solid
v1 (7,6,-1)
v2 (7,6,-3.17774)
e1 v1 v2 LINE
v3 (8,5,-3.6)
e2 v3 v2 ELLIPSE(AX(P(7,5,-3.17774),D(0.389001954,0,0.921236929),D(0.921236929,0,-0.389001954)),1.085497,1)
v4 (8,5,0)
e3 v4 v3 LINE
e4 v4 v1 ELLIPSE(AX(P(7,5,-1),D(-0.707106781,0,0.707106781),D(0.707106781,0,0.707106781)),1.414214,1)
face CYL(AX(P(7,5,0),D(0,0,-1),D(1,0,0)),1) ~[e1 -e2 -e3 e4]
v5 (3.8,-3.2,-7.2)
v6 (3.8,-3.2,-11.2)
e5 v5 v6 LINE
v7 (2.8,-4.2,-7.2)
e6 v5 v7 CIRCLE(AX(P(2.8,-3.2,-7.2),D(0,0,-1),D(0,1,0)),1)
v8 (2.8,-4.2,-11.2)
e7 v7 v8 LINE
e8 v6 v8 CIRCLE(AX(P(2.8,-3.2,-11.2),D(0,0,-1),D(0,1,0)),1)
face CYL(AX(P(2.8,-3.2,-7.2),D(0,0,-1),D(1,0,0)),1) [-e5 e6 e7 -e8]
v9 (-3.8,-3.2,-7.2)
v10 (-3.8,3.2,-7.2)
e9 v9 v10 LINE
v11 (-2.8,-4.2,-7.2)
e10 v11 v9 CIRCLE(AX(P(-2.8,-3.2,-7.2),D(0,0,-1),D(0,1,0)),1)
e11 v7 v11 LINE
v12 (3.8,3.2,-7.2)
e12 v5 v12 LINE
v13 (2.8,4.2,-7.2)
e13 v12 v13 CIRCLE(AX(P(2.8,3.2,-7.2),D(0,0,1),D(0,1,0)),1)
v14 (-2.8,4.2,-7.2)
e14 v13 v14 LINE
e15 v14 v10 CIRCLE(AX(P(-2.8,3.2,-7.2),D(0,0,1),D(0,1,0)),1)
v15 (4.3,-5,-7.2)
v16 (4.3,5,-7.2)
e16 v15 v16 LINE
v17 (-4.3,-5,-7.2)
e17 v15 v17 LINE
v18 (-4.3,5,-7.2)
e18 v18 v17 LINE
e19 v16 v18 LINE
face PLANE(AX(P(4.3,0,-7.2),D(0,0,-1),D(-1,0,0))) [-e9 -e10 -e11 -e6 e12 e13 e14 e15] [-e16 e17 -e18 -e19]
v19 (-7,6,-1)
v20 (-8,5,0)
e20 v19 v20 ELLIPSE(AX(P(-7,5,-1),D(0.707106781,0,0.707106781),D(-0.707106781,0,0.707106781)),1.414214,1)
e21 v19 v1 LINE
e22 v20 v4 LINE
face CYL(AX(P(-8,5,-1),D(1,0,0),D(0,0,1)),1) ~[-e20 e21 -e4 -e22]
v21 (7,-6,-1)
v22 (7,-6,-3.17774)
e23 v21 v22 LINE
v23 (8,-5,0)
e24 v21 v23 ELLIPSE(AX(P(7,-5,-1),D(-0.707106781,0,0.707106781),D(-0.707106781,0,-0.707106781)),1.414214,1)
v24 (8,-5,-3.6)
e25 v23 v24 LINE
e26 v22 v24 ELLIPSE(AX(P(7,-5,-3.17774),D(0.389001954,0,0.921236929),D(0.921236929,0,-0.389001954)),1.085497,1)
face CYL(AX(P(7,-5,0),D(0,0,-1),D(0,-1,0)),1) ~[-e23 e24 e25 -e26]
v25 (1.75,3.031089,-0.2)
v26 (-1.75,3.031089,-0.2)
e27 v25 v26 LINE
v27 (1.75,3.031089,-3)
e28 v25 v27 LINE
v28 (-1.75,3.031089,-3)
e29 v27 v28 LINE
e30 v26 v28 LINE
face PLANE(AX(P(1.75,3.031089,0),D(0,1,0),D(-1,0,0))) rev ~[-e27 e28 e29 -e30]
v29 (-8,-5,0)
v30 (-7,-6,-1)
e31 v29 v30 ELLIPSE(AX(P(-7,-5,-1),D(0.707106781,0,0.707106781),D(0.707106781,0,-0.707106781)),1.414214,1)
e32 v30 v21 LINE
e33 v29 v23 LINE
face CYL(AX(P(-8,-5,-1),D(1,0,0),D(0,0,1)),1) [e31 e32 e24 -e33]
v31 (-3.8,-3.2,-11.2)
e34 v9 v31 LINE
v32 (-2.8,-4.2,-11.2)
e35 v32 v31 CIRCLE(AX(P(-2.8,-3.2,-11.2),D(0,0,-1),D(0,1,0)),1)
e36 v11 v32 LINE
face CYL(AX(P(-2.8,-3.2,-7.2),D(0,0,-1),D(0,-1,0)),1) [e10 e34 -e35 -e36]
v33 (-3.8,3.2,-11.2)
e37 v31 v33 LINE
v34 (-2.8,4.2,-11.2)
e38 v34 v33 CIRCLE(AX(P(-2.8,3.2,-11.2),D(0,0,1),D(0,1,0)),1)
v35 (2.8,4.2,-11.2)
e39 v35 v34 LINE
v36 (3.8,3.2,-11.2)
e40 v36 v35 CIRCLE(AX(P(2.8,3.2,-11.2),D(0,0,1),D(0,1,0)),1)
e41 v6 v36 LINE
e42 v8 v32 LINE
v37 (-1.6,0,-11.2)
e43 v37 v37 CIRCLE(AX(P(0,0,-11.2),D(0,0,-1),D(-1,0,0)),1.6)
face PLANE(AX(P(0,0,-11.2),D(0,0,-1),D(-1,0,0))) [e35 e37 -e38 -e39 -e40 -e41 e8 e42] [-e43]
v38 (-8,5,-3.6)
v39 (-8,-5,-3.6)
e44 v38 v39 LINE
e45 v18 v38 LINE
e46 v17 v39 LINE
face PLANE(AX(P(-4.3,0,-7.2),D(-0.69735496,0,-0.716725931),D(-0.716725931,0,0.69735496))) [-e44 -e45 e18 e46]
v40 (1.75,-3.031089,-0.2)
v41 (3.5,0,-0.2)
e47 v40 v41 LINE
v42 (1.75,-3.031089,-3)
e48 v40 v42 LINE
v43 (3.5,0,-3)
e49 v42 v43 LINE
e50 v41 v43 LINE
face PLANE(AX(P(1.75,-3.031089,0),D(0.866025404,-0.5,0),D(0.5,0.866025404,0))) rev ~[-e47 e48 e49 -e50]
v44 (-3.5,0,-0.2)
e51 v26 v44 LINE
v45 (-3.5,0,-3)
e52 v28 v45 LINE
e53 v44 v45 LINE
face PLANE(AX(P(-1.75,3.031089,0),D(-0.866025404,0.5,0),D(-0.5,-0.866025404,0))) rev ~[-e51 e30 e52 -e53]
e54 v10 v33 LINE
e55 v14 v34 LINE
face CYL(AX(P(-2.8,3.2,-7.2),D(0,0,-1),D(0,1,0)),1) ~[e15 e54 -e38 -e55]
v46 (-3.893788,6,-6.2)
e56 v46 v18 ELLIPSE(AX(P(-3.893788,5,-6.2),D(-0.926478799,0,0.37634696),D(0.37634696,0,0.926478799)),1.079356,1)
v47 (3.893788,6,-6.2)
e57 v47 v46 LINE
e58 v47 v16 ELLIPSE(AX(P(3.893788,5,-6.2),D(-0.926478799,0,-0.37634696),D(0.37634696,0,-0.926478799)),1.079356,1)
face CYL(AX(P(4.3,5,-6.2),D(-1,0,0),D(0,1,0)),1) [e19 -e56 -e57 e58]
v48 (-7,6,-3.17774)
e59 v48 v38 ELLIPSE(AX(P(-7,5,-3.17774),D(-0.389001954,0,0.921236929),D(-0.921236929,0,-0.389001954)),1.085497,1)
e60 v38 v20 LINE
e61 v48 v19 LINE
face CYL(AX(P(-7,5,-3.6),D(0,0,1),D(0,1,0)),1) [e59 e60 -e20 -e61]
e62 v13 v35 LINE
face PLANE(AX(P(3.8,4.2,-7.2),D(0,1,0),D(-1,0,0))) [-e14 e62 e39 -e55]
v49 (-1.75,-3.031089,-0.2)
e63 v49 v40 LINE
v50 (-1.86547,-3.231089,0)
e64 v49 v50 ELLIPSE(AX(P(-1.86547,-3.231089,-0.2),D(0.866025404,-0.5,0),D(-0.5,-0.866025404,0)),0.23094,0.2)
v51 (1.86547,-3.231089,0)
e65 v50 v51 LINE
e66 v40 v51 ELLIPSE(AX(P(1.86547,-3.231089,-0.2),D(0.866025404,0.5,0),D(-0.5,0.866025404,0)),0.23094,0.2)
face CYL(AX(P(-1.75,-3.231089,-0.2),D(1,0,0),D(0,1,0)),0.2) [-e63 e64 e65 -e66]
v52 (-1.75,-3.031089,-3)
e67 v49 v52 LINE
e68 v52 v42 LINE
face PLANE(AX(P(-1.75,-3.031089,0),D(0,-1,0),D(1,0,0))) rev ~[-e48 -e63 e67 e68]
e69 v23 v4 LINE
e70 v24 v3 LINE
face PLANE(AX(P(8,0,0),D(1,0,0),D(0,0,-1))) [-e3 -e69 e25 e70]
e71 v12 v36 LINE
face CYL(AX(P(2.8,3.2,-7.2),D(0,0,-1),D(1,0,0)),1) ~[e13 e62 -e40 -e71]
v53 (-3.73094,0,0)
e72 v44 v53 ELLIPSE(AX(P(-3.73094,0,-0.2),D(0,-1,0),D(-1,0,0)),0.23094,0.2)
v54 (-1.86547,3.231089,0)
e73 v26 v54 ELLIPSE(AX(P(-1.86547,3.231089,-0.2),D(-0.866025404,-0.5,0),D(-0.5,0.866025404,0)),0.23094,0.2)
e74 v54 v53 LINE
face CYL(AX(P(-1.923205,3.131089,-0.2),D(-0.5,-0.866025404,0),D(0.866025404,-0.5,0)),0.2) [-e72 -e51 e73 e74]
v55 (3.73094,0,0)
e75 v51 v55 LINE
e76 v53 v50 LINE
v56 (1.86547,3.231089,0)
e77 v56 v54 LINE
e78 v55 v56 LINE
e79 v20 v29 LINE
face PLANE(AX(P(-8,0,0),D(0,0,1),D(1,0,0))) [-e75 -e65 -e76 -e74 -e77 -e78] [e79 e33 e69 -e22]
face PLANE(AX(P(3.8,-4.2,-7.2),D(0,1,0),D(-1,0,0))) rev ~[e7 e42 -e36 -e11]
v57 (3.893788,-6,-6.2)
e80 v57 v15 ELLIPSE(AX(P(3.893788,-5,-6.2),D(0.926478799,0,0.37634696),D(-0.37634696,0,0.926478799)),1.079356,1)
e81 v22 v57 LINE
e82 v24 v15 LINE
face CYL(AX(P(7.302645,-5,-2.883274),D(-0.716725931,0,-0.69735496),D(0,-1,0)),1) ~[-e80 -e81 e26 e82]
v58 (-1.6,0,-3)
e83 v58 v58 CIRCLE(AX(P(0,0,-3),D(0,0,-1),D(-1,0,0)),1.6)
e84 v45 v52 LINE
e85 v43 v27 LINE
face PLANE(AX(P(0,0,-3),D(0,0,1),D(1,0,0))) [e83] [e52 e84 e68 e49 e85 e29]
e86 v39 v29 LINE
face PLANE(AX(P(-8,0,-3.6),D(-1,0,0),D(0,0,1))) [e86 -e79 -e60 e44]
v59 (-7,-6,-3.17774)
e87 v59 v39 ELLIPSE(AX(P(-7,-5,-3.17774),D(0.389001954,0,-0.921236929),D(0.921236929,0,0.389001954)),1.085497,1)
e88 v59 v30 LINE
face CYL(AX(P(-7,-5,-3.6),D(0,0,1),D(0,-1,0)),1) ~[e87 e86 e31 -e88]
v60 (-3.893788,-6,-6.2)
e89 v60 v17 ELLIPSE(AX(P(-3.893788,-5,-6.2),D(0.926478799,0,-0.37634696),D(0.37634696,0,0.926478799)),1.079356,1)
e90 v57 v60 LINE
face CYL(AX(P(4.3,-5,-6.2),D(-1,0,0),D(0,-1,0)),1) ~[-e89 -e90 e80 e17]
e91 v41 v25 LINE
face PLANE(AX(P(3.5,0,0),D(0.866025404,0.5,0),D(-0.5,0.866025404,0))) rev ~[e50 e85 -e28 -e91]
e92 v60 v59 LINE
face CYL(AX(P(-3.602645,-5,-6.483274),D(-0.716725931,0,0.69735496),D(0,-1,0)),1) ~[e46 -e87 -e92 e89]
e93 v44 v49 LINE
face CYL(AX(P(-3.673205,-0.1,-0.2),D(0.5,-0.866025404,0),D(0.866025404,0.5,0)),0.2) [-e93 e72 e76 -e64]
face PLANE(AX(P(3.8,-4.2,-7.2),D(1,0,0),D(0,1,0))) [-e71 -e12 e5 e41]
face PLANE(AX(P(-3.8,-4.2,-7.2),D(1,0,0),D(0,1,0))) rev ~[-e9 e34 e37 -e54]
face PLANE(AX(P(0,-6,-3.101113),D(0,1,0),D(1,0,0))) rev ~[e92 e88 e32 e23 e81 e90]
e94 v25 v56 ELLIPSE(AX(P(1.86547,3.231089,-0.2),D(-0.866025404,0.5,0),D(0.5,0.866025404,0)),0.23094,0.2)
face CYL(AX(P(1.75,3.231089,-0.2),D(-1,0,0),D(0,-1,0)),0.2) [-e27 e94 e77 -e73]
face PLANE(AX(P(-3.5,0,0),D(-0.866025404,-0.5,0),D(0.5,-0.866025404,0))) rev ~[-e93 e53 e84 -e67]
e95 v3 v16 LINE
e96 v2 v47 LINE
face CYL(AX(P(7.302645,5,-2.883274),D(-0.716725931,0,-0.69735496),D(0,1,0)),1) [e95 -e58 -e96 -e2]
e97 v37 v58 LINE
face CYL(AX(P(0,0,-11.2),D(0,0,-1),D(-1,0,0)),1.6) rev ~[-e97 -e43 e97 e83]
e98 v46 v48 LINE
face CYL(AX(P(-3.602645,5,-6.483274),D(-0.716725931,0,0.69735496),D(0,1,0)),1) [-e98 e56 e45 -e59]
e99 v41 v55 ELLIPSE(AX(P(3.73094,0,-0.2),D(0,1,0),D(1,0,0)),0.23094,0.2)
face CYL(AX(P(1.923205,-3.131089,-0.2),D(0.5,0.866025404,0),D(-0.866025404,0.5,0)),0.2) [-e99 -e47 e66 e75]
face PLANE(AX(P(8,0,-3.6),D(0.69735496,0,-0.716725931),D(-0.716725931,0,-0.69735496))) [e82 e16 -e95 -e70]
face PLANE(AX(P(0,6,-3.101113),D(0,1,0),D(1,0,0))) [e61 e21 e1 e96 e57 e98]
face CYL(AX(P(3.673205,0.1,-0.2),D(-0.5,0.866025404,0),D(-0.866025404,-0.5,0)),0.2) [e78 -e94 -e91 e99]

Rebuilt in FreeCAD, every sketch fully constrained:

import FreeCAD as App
import Part
import Sketcher

V = App.Vector
Q = App.Units.Quantity


def edges_at(feature, points):
    """Names of the edges that pass closest to the given points."""
    edges = feature.Shape.Edges
    near = lambda p: min(range(len(edges)), key=lambda i: edges[i].distToShape(Part.Vertex(*p))[0])
    return sorted({f"Edge{near(p) + 1}" for p in points})

doc = App.newDocument("Part")
body = doc.addObject("PartDesign::Body", "Body")

sketch1 = doc.addObject("Sketcher::SketchObject", "Sketch")
body.addObject(sketch1)
sketch1.AttachmentSupport = (doc.XZ_Plane, [""])
sketch1.MapMode = "FlatFace"
sketch1.addGeometry(Part.LineSegment(V(-8, 0, 0), V(8, 0, 0)), False)
sketch1.addGeometry(Part.LineSegment(V(8, 0, 0), V(8, -3.6, 0)), False)
sketch1.addGeometry(Part.LineSegment(V(8, -3.6, 0), V(4.3, -7.2, 0)), False)
sketch1.addGeometry(Part.LineSegment(V(4.3, -7.2, 0), V(-4.3, -7.2, 0)), False)
sketch1.addGeometry(Part.LineSegment(V(-4.3, -7.2, 0), V(-8, -3.6, 0)), False)
sketch1.addGeometry(Part.LineSegment(V(-8, -3.6, 0), V(-8, 0, 0)), False)
sketch1.addConstraint(Sketcher.Constraint("Coincident", 0, 2, 1, 1))
sketch1.addConstraint(Sketcher.Constraint("Coincident", 1, 2, 2, 1))
sketch1.addConstraint(Sketcher.Constraint("Coincident", 2, 2, 3, 1))
sketch1.addConstraint(Sketcher.Constraint("Coincident", 3, 2, 4, 1))
sketch1.addConstraint(Sketcher.Constraint("Coincident", 4, 2, 5, 1))
sketch1.addConstraint(Sketcher.Constraint("Coincident", 5, 2, 0, 1))
sketch1.addConstraint(Sketcher.Constraint("Horizontal", 0))
sketch1.addConstraint(Sketcher.Constraint("Vertical", 1))
sketch1.addConstraint(Sketcher.Constraint("Horizontal", 3))
sketch1.addConstraint(Sketcher.Constraint("Vertical", 5))
sketch1.addConstraint(Sketcher.Constraint("Symmetric", 0, 2, 5, 2, -1, 1))
sketch1.addConstraint(Sketcher.Constraint("Horizontal", 1, 2, 4, 2))
sketch1.addConstraint(Sketcher.Constraint("Equal", 2, 4))
sketch1.addConstraint(Sketcher.Constraint("DistanceX", 0, 1, 0, 2, Q("16 mm")))
sketch1.addConstraint(Sketcher.Constraint("DistanceX", 3, 2, 3, 1, Q("8.6 mm")))
sketch1.addConstraint(Sketcher.Constraint("DistanceY", 1, 2, 1, 1, Q("3.6 mm")))
sketch1.addConstraint(Sketcher.Constraint("DistanceY", 2, 2, -1, 1, Q("7.2 mm")))
pad1 = doc.addObject("PartDesign::Pad", "Pad")
body.addObject(pad1)
pad1.Profile = sketch1
pad1.Length = 12
pad1.Midplane = True

sketch2 = doc.addObject("Sketcher::SketchObject", "Sketch001")
body.addObject(sketch2)
sketch2.AttachmentSupport = (doc.XY_Plane, [""])
sketch2.MapMode = "FlatFace"
sketch2.AttachmentOffset = App.Placement(V(0, 0, -7.2), App.Rotation())
sketch2.addGeometry(Part.LineSegment(V(3.8, 4.2, 0), V(3.8, -4.2, 0)), False)
sketch2.addGeometry(Part.LineSegment(V(3.8, -4.2, 0), V(-3.8, -4.2, 0)), False)
sketch2.addGeometry(Part.LineSegment(V(-3.8, -4.2, 0), V(-3.8, 4.2, 0)), False)
sketch2.addGeometry(Part.LineSegment(V(-3.8, 4.2, 0), V(3.8, 4.2, 0)), False)
sketch2.addConstraint(Sketcher.Constraint("Coincident", 0, 2, 1, 1))
sketch2.addConstraint(Sketcher.Constraint("Coincident", 1, 2, 2, 1))
sketch2.addConstraint(Sketcher.Constraint("Coincident", 2, 2, 3, 1))
sketch2.addConstraint(Sketcher.Constraint("Coincident", 3, 2, 0, 1))
sketch2.addConstraint(Sketcher.Constraint("Vertical", 0))
sketch2.addConstraint(Sketcher.Constraint("Horizontal", 1))
sketch2.addConstraint(Sketcher.Constraint("Vertical", 2))
sketch2.addConstraint(Sketcher.Constraint("Horizontal", 3))
sketch2.addConstraint(Sketcher.Constraint("Symmetric", 0, 2, 2, 2, -1, 1))
sketch2.addConstraint(Sketcher.Constraint("DistanceX", 1, 2, 1, 1, Q("7.6 mm")))
sketch2.addConstraint(Sketcher.Constraint("DistanceY", 0, 2, 0, 1, Q("8.4 mm")))
pad2 = doc.addObject("PartDesign::Pad", "Pad001")
body.addObject(pad2)
pad2.Profile = sketch2
pad2.Length = 4
pad2.Reversed = True
doc.recompute()

fillet = doc.addObject("PartDesign::Fillet", "Fillet")
body.addObject(fillet)
fillet.Base = (pad2, edges_at(pad2, [
    (-6.15, 6, -5.4),
    (-8, 6, -1.8),
    (0, 6, 0),
    (8, 6, -1.8),
    (6.15, 6, -5.4),
    (8, -6, -1.8),
    (0, -6, 0),
    (-8, -6, -1.8),
    (-6.15, -6, -5.4),
    (0, -6, -7.2),
    (6.15, -6, -5.4),
    (0, 6, -7.2),
]))
fillet.Radius = 1

sketch3 = doc.addObject("Sketcher::SketchObject", "Sketch002")
body.addObject(sketch3)
sketch3.AttachmentSupport = (doc.XY_Plane, [""])
sketch3.MapMode = "FlatFace"
sketch3.AttachmentOffset = App.Placement(V(0, 0, -11.2), App.Rotation())
sketch3.addGeometry(Part.Circle(V(0, 0, 0), V(0, 0, 1), 1.6), False)
sketch3.addConstraint(Sketcher.Constraint("Coincident", 0, 3, -1, 1))
sketch3.addConstraint(Sketcher.Constraint("Diameter", 0, Q("3.2 mm")))
pocket1 = doc.addObject("PartDesign::Pocket", "Pocket")
body.addObject(pocket1)
pocket1.Profile = sketch3
pocket1.Type = "ThroughAll"
pocket1.Reversed = True
doc.recompute()

fillet2 = doc.addObject("PartDesign::Fillet", "Fillet001")
body.addObject(fillet2)
fillet2.Base = (pocket1, edges_at(pocket1, [
    (-3.8, -4.2, -9.2),
    (-3.8, 4.2, -9.2),
    (3.8, 4.2, -9.2),
    (3.8, -4.2, -9.2),
]))
fillet2.Radius = 1

sketch4 = doc.addObject("Sketcher::SketchObject", "Sketch003")
body.addObject(sketch4)
sketch4.AttachmentSupport = (doc.XY_Plane, [""])
sketch4.MapMode = "FlatFace"
sketch4.addGeometry(Part.LineSegment(V(3.5, 0, 0), V(1.75, 3.031089, 0)), False)
sketch4.addGeometry(Part.LineSegment(V(1.75, 3.031089, 0), V(-1.75, 3.031089, 0)), False)
sketch4.addGeometry(Part.LineSegment(V(-1.75, 3.031089, 0), V(-3.5, 0, 0)), False)
sketch4.addGeometry(Part.LineSegment(V(-3.5, 0, 0), V(-1.75, -3.031089, 0)), False)
sketch4.addGeometry(Part.LineSegment(V(-1.75, -3.031089, 0), V(1.75, -3.031089, 0)), False)
sketch4.addGeometry(Part.LineSegment(V(1.75, -3.031089, 0), V(3.5, 0, 0)), False)
sketch4.addConstraint(Sketcher.Constraint("Coincident", 0, 2, 1, 1))
sketch4.addConstraint(Sketcher.Constraint("Coincident", 1, 2, 2, 1))
sketch4.addConstraint(Sketcher.Constraint("Coincident", 2, 2, 3, 1))
sketch4.addConstraint(Sketcher.Constraint("Coincident", 3, 2, 4, 1))
sketch4.addConstraint(Sketcher.Constraint("Coincident", 4, 2, 5, 1))
sketch4.addConstraint(Sketcher.Constraint("Coincident", 5, 2, 0, 1))
sketch4.addConstraint(Sketcher.Constraint("Horizontal", 1))
sketch4.addConstraint(Sketcher.Constraint("Horizontal", 4))
sketch4.addConstraint(Sketcher.Constraint("Symmetric", 0, 2, 3, 2, -1, 1))
sketch4.addConstraint(Sketcher.Constraint("Symmetric", 2, 2, 5, 2, -1, 1))
sketch4.addConstraint(Sketcher.Constraint("PointOnObject", 2, 2, -1))
sketch4.addConstraint(Sketcher.Constraint("Parallel", 2, 5))
sketch4.addConstraint(Sketcher.Constraint("Vertical", 1, 2, 3, 2))
sketch4.addConstraint(Sketcher.Constraint("Angle", 0, Q("120 deg")))
sketch4.addConstraint(Sketcher.Constraint("DistanceX", 1, 2, 1, 1, Q("3.5 mm")))
sketch4.addConstraint(Sketcher.Constraint("DistanceX", 2, 2, 5, 2, Q("7 mm")))
pocket2 = doc.addObject("PartDesign::Pocket", "Pocket001")
body.addObject(pocket2)
pocket2.Profile = sketch4
pocket2.Length = 3
doc.recompute()

fillet3 = doc.addObject("PartDesign::Fillet", "Fillet002")
body.addObject(fillet3)
fillet3.Base = (pocket2, edges_at(pocket2, [
    (2.625, -1.516, 0),
    (2.625, 1.516, 0),
    (0, 3.031, 0),
    (-2.625, 1.516, 0),
    (-2.625, -1.516, 0),
    (0, -3.031, 0),
]))
fillet3.Radius = 0.2

doc.recompute()
